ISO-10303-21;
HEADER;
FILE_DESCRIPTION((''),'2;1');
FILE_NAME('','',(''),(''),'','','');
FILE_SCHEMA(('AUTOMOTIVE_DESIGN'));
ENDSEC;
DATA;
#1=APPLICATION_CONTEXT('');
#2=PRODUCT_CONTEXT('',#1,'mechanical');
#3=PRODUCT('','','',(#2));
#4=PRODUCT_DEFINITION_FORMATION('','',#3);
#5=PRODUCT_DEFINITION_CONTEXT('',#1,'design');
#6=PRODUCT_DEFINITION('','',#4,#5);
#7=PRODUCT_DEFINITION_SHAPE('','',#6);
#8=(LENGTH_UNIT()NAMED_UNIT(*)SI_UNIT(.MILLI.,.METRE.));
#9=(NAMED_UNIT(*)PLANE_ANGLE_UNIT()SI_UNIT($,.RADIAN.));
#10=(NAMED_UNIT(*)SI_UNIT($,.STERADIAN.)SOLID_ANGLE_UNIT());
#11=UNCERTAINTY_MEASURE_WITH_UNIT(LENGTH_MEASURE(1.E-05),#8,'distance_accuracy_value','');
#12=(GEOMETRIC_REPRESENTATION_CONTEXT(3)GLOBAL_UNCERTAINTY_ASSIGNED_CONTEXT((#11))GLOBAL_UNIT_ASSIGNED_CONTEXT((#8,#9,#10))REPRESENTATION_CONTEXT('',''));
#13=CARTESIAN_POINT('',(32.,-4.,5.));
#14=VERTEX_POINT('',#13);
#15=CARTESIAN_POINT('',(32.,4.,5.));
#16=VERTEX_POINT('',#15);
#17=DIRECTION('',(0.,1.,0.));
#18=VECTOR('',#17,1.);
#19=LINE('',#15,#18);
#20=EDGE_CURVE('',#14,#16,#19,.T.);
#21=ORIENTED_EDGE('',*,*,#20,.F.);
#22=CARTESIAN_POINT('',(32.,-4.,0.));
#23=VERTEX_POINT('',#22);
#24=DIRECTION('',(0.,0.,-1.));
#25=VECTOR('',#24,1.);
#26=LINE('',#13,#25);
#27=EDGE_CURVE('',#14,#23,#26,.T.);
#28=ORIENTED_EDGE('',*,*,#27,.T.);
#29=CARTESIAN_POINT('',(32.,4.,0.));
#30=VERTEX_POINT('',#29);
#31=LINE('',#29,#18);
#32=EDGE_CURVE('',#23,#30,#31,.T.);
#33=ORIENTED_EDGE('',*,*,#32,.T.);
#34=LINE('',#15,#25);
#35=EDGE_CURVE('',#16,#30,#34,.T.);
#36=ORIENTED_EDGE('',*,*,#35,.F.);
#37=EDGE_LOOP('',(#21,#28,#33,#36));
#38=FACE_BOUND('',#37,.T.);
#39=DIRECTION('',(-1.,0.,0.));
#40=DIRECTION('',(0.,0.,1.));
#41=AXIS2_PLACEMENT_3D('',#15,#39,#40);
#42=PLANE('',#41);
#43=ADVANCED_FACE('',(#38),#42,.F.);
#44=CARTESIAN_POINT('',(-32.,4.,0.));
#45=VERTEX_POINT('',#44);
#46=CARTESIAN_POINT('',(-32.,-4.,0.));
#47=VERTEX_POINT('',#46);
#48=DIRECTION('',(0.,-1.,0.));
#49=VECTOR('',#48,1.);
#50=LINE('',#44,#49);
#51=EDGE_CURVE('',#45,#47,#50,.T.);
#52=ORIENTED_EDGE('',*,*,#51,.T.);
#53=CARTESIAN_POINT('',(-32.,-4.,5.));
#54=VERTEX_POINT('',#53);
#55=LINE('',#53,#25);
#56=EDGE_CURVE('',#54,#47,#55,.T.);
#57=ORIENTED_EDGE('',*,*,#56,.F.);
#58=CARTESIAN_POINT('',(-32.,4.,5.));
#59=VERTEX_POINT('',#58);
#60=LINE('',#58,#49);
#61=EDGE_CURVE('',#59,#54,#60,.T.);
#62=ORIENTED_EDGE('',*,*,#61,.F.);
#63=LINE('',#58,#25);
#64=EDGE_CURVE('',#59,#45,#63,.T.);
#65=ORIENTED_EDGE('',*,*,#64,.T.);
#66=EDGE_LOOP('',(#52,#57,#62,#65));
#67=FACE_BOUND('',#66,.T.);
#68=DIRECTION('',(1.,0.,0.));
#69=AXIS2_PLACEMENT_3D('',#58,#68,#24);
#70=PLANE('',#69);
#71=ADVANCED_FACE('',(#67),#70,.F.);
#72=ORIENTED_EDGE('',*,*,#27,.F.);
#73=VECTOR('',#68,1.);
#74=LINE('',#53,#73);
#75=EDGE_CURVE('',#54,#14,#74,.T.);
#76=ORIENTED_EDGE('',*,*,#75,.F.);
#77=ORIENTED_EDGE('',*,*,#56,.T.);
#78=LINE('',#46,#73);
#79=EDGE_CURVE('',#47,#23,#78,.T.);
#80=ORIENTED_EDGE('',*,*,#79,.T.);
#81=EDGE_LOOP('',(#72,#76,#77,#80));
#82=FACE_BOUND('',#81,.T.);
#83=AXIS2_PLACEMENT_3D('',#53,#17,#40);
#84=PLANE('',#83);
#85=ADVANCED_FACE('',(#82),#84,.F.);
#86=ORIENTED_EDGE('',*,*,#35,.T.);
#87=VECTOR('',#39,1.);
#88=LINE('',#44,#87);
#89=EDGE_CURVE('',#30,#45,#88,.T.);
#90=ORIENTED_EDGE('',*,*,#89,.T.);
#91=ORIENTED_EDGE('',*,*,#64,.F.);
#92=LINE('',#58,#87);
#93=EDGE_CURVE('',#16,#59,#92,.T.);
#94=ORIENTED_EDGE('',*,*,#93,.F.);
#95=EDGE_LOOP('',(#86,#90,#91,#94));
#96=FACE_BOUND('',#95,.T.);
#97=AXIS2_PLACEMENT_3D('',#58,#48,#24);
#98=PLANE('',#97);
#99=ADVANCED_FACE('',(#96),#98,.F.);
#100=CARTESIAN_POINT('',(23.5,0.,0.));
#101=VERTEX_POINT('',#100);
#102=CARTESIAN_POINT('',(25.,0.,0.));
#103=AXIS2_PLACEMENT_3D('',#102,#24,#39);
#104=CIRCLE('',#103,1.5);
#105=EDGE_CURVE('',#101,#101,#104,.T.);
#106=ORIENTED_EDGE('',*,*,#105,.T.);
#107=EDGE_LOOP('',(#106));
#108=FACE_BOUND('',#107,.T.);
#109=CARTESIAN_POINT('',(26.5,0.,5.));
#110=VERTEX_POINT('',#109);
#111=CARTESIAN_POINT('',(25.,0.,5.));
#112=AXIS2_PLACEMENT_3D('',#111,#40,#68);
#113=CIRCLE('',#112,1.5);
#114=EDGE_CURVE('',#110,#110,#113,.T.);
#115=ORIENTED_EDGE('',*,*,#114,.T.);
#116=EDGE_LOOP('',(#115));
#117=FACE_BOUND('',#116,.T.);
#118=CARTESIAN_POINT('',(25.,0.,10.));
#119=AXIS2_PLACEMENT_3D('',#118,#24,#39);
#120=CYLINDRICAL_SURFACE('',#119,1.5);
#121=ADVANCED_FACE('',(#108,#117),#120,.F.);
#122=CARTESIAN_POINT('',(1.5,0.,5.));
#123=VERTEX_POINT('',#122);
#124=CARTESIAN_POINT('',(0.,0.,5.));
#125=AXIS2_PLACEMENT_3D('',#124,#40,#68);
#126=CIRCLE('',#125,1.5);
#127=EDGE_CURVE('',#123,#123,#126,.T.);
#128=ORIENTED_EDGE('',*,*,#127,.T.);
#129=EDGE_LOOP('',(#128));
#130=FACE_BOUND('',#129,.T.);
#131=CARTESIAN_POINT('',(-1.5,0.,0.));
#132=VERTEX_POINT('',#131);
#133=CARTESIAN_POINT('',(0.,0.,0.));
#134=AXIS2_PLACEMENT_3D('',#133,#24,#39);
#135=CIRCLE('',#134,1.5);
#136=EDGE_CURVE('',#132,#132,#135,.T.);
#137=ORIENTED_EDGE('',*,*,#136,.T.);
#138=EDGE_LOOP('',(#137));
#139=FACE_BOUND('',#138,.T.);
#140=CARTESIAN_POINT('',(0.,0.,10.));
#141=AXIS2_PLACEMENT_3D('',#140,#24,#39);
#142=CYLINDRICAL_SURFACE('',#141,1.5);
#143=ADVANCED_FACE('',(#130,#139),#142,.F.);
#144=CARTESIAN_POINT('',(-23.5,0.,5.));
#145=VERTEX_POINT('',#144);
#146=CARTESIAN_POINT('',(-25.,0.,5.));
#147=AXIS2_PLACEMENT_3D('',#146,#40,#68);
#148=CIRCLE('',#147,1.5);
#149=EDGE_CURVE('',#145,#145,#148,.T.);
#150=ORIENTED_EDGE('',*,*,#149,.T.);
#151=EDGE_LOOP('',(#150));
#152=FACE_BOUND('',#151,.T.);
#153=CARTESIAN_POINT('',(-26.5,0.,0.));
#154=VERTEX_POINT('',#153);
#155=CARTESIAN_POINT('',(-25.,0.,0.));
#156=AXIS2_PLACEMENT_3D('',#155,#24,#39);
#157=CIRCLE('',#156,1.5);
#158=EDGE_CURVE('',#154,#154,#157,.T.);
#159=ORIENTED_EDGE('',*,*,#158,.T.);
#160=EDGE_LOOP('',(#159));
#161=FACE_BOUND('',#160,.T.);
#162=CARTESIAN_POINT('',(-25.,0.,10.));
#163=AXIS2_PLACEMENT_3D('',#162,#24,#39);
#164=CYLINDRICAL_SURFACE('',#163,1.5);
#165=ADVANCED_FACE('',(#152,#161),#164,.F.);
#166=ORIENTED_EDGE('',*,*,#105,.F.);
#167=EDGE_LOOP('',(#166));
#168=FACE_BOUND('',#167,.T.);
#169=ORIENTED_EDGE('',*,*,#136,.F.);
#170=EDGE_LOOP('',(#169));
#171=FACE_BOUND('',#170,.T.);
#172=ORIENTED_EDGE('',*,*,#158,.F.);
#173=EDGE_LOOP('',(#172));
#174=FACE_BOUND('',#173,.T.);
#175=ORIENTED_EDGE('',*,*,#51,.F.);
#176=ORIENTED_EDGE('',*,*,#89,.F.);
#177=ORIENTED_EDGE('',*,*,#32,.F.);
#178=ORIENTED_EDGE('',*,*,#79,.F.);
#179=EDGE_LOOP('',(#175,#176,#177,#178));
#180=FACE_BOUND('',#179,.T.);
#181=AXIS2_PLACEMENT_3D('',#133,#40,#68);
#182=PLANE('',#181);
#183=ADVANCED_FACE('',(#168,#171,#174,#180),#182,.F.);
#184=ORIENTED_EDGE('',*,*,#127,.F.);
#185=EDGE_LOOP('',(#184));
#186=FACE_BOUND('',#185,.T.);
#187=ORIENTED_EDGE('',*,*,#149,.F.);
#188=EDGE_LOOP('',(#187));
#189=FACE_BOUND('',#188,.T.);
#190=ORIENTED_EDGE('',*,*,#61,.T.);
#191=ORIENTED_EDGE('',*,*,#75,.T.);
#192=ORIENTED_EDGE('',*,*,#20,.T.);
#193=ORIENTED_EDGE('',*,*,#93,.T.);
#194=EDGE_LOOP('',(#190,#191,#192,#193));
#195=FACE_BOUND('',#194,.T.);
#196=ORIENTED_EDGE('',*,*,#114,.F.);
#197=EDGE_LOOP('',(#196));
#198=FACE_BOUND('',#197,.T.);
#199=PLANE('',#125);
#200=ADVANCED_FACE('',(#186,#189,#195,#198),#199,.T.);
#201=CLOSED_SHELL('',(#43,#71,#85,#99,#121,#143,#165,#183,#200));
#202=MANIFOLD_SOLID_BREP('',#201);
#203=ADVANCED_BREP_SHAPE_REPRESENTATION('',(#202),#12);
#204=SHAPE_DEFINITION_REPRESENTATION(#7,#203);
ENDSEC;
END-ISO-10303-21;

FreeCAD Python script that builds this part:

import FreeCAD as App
import Part
import Sketcher


def add_polygon(sketch, points):
    """Adds a closed chain of lines whose ends are joined by coincident constraints."""
    first, n = sketch.GeometryCount, len(points)
    for a, b in zip(points, points[1:] + points[:1]):
        sketch.addGeometry(Part.LineSegment(App.Vector(*a, 0), App.Vector(*b, 0)), False)
    for i in range(n):
        sketch.addConstraint(Sketcher.Constraint("Coincident", first + i, 2, first + (i + 1) % n, 1))

doc = App.newDocument("Part")
body = doc.addObject("PartDesign::Body", "Body")

# Sketch on XY plane
sketch1 = body.newObject("Sketcher::SketchObject", "Sketch")
sketch1.AttachmentSupport = (doc.getObject("XY_Plane"), [""])
sketch1.MapMode = "FlatFace"
add_polygon(sketch1, [(-32, 4), (-32, -4), (32, -4), (32, 4)])  # lines 0-3
sketch1.addConstraint([
    Sketcher.Constraint("Vertical", 0),
    Sketcher.Constraint("Horizontal", 1),
    Sketcher.Constraint("Vertical", 2),
    Sketcher.Constraint("Horizontal", 3),
    Sketcher.Constraint("Symmetric", 0, 2, 2, 2, -1, 1),
    Sketcher.Constraint("DistanceX", 1, 1, 1, 2, 64.0),
    Sketcher.Constraint("DistanceY", 0, 2, 0, 1, 8.0),
])
pad1 = body.newObject("PartDesign::Pad", "Pad")
pad1.Profile = sketch1
pad1.Length = 5

# Sketch on XY plane
sketch2 = body.newObject("Sketcher::SketchObject", "Sketch001")
sketch2.AttachmentSupport = (doc.getObject("XY_Plane"), [""])
sketch2.MapMode = "FlatFace"
sketch2.addGeometry([
    Part.Circle(App.Vector(25, 0, 0), App.Vector(0, 0, 1), 1.5),
    Part.Circle(App.Vector(0, 0, 0), App.Vector(0, 0, 1), 1.5),
    Part.Circle(App.Vector(-25, 0, 0), App.Vector(0, 0, 1), 1.5),
], False)
sketch2.addConstraint([
    Sketcher.Constraint("Coincident", 1, 3, -1, 1),
    Sketcher.Constraint("Equal", 0, 1),
    Sketcher.Constraint("Equal", 1, 2),
    Sketcher.Constraint("Symmetric", 0, 3, 2, 3, -1, 1),
    Sketcher.Constraint("PointOnObject", 0, 3, -1),
    Sketcher.Constraint("Diameter", 0, 3.0),
    Sketcher.Constraint("DistanceX", -1, 1, 0, 3, 25.0),
])
pocket1 = body.newObject("PartDesign::Pocket", "Pocket")
pocket1.Profile = sketch2
pocket1.Length = 10
pocket1.Reversed = True

doc.recompute()
